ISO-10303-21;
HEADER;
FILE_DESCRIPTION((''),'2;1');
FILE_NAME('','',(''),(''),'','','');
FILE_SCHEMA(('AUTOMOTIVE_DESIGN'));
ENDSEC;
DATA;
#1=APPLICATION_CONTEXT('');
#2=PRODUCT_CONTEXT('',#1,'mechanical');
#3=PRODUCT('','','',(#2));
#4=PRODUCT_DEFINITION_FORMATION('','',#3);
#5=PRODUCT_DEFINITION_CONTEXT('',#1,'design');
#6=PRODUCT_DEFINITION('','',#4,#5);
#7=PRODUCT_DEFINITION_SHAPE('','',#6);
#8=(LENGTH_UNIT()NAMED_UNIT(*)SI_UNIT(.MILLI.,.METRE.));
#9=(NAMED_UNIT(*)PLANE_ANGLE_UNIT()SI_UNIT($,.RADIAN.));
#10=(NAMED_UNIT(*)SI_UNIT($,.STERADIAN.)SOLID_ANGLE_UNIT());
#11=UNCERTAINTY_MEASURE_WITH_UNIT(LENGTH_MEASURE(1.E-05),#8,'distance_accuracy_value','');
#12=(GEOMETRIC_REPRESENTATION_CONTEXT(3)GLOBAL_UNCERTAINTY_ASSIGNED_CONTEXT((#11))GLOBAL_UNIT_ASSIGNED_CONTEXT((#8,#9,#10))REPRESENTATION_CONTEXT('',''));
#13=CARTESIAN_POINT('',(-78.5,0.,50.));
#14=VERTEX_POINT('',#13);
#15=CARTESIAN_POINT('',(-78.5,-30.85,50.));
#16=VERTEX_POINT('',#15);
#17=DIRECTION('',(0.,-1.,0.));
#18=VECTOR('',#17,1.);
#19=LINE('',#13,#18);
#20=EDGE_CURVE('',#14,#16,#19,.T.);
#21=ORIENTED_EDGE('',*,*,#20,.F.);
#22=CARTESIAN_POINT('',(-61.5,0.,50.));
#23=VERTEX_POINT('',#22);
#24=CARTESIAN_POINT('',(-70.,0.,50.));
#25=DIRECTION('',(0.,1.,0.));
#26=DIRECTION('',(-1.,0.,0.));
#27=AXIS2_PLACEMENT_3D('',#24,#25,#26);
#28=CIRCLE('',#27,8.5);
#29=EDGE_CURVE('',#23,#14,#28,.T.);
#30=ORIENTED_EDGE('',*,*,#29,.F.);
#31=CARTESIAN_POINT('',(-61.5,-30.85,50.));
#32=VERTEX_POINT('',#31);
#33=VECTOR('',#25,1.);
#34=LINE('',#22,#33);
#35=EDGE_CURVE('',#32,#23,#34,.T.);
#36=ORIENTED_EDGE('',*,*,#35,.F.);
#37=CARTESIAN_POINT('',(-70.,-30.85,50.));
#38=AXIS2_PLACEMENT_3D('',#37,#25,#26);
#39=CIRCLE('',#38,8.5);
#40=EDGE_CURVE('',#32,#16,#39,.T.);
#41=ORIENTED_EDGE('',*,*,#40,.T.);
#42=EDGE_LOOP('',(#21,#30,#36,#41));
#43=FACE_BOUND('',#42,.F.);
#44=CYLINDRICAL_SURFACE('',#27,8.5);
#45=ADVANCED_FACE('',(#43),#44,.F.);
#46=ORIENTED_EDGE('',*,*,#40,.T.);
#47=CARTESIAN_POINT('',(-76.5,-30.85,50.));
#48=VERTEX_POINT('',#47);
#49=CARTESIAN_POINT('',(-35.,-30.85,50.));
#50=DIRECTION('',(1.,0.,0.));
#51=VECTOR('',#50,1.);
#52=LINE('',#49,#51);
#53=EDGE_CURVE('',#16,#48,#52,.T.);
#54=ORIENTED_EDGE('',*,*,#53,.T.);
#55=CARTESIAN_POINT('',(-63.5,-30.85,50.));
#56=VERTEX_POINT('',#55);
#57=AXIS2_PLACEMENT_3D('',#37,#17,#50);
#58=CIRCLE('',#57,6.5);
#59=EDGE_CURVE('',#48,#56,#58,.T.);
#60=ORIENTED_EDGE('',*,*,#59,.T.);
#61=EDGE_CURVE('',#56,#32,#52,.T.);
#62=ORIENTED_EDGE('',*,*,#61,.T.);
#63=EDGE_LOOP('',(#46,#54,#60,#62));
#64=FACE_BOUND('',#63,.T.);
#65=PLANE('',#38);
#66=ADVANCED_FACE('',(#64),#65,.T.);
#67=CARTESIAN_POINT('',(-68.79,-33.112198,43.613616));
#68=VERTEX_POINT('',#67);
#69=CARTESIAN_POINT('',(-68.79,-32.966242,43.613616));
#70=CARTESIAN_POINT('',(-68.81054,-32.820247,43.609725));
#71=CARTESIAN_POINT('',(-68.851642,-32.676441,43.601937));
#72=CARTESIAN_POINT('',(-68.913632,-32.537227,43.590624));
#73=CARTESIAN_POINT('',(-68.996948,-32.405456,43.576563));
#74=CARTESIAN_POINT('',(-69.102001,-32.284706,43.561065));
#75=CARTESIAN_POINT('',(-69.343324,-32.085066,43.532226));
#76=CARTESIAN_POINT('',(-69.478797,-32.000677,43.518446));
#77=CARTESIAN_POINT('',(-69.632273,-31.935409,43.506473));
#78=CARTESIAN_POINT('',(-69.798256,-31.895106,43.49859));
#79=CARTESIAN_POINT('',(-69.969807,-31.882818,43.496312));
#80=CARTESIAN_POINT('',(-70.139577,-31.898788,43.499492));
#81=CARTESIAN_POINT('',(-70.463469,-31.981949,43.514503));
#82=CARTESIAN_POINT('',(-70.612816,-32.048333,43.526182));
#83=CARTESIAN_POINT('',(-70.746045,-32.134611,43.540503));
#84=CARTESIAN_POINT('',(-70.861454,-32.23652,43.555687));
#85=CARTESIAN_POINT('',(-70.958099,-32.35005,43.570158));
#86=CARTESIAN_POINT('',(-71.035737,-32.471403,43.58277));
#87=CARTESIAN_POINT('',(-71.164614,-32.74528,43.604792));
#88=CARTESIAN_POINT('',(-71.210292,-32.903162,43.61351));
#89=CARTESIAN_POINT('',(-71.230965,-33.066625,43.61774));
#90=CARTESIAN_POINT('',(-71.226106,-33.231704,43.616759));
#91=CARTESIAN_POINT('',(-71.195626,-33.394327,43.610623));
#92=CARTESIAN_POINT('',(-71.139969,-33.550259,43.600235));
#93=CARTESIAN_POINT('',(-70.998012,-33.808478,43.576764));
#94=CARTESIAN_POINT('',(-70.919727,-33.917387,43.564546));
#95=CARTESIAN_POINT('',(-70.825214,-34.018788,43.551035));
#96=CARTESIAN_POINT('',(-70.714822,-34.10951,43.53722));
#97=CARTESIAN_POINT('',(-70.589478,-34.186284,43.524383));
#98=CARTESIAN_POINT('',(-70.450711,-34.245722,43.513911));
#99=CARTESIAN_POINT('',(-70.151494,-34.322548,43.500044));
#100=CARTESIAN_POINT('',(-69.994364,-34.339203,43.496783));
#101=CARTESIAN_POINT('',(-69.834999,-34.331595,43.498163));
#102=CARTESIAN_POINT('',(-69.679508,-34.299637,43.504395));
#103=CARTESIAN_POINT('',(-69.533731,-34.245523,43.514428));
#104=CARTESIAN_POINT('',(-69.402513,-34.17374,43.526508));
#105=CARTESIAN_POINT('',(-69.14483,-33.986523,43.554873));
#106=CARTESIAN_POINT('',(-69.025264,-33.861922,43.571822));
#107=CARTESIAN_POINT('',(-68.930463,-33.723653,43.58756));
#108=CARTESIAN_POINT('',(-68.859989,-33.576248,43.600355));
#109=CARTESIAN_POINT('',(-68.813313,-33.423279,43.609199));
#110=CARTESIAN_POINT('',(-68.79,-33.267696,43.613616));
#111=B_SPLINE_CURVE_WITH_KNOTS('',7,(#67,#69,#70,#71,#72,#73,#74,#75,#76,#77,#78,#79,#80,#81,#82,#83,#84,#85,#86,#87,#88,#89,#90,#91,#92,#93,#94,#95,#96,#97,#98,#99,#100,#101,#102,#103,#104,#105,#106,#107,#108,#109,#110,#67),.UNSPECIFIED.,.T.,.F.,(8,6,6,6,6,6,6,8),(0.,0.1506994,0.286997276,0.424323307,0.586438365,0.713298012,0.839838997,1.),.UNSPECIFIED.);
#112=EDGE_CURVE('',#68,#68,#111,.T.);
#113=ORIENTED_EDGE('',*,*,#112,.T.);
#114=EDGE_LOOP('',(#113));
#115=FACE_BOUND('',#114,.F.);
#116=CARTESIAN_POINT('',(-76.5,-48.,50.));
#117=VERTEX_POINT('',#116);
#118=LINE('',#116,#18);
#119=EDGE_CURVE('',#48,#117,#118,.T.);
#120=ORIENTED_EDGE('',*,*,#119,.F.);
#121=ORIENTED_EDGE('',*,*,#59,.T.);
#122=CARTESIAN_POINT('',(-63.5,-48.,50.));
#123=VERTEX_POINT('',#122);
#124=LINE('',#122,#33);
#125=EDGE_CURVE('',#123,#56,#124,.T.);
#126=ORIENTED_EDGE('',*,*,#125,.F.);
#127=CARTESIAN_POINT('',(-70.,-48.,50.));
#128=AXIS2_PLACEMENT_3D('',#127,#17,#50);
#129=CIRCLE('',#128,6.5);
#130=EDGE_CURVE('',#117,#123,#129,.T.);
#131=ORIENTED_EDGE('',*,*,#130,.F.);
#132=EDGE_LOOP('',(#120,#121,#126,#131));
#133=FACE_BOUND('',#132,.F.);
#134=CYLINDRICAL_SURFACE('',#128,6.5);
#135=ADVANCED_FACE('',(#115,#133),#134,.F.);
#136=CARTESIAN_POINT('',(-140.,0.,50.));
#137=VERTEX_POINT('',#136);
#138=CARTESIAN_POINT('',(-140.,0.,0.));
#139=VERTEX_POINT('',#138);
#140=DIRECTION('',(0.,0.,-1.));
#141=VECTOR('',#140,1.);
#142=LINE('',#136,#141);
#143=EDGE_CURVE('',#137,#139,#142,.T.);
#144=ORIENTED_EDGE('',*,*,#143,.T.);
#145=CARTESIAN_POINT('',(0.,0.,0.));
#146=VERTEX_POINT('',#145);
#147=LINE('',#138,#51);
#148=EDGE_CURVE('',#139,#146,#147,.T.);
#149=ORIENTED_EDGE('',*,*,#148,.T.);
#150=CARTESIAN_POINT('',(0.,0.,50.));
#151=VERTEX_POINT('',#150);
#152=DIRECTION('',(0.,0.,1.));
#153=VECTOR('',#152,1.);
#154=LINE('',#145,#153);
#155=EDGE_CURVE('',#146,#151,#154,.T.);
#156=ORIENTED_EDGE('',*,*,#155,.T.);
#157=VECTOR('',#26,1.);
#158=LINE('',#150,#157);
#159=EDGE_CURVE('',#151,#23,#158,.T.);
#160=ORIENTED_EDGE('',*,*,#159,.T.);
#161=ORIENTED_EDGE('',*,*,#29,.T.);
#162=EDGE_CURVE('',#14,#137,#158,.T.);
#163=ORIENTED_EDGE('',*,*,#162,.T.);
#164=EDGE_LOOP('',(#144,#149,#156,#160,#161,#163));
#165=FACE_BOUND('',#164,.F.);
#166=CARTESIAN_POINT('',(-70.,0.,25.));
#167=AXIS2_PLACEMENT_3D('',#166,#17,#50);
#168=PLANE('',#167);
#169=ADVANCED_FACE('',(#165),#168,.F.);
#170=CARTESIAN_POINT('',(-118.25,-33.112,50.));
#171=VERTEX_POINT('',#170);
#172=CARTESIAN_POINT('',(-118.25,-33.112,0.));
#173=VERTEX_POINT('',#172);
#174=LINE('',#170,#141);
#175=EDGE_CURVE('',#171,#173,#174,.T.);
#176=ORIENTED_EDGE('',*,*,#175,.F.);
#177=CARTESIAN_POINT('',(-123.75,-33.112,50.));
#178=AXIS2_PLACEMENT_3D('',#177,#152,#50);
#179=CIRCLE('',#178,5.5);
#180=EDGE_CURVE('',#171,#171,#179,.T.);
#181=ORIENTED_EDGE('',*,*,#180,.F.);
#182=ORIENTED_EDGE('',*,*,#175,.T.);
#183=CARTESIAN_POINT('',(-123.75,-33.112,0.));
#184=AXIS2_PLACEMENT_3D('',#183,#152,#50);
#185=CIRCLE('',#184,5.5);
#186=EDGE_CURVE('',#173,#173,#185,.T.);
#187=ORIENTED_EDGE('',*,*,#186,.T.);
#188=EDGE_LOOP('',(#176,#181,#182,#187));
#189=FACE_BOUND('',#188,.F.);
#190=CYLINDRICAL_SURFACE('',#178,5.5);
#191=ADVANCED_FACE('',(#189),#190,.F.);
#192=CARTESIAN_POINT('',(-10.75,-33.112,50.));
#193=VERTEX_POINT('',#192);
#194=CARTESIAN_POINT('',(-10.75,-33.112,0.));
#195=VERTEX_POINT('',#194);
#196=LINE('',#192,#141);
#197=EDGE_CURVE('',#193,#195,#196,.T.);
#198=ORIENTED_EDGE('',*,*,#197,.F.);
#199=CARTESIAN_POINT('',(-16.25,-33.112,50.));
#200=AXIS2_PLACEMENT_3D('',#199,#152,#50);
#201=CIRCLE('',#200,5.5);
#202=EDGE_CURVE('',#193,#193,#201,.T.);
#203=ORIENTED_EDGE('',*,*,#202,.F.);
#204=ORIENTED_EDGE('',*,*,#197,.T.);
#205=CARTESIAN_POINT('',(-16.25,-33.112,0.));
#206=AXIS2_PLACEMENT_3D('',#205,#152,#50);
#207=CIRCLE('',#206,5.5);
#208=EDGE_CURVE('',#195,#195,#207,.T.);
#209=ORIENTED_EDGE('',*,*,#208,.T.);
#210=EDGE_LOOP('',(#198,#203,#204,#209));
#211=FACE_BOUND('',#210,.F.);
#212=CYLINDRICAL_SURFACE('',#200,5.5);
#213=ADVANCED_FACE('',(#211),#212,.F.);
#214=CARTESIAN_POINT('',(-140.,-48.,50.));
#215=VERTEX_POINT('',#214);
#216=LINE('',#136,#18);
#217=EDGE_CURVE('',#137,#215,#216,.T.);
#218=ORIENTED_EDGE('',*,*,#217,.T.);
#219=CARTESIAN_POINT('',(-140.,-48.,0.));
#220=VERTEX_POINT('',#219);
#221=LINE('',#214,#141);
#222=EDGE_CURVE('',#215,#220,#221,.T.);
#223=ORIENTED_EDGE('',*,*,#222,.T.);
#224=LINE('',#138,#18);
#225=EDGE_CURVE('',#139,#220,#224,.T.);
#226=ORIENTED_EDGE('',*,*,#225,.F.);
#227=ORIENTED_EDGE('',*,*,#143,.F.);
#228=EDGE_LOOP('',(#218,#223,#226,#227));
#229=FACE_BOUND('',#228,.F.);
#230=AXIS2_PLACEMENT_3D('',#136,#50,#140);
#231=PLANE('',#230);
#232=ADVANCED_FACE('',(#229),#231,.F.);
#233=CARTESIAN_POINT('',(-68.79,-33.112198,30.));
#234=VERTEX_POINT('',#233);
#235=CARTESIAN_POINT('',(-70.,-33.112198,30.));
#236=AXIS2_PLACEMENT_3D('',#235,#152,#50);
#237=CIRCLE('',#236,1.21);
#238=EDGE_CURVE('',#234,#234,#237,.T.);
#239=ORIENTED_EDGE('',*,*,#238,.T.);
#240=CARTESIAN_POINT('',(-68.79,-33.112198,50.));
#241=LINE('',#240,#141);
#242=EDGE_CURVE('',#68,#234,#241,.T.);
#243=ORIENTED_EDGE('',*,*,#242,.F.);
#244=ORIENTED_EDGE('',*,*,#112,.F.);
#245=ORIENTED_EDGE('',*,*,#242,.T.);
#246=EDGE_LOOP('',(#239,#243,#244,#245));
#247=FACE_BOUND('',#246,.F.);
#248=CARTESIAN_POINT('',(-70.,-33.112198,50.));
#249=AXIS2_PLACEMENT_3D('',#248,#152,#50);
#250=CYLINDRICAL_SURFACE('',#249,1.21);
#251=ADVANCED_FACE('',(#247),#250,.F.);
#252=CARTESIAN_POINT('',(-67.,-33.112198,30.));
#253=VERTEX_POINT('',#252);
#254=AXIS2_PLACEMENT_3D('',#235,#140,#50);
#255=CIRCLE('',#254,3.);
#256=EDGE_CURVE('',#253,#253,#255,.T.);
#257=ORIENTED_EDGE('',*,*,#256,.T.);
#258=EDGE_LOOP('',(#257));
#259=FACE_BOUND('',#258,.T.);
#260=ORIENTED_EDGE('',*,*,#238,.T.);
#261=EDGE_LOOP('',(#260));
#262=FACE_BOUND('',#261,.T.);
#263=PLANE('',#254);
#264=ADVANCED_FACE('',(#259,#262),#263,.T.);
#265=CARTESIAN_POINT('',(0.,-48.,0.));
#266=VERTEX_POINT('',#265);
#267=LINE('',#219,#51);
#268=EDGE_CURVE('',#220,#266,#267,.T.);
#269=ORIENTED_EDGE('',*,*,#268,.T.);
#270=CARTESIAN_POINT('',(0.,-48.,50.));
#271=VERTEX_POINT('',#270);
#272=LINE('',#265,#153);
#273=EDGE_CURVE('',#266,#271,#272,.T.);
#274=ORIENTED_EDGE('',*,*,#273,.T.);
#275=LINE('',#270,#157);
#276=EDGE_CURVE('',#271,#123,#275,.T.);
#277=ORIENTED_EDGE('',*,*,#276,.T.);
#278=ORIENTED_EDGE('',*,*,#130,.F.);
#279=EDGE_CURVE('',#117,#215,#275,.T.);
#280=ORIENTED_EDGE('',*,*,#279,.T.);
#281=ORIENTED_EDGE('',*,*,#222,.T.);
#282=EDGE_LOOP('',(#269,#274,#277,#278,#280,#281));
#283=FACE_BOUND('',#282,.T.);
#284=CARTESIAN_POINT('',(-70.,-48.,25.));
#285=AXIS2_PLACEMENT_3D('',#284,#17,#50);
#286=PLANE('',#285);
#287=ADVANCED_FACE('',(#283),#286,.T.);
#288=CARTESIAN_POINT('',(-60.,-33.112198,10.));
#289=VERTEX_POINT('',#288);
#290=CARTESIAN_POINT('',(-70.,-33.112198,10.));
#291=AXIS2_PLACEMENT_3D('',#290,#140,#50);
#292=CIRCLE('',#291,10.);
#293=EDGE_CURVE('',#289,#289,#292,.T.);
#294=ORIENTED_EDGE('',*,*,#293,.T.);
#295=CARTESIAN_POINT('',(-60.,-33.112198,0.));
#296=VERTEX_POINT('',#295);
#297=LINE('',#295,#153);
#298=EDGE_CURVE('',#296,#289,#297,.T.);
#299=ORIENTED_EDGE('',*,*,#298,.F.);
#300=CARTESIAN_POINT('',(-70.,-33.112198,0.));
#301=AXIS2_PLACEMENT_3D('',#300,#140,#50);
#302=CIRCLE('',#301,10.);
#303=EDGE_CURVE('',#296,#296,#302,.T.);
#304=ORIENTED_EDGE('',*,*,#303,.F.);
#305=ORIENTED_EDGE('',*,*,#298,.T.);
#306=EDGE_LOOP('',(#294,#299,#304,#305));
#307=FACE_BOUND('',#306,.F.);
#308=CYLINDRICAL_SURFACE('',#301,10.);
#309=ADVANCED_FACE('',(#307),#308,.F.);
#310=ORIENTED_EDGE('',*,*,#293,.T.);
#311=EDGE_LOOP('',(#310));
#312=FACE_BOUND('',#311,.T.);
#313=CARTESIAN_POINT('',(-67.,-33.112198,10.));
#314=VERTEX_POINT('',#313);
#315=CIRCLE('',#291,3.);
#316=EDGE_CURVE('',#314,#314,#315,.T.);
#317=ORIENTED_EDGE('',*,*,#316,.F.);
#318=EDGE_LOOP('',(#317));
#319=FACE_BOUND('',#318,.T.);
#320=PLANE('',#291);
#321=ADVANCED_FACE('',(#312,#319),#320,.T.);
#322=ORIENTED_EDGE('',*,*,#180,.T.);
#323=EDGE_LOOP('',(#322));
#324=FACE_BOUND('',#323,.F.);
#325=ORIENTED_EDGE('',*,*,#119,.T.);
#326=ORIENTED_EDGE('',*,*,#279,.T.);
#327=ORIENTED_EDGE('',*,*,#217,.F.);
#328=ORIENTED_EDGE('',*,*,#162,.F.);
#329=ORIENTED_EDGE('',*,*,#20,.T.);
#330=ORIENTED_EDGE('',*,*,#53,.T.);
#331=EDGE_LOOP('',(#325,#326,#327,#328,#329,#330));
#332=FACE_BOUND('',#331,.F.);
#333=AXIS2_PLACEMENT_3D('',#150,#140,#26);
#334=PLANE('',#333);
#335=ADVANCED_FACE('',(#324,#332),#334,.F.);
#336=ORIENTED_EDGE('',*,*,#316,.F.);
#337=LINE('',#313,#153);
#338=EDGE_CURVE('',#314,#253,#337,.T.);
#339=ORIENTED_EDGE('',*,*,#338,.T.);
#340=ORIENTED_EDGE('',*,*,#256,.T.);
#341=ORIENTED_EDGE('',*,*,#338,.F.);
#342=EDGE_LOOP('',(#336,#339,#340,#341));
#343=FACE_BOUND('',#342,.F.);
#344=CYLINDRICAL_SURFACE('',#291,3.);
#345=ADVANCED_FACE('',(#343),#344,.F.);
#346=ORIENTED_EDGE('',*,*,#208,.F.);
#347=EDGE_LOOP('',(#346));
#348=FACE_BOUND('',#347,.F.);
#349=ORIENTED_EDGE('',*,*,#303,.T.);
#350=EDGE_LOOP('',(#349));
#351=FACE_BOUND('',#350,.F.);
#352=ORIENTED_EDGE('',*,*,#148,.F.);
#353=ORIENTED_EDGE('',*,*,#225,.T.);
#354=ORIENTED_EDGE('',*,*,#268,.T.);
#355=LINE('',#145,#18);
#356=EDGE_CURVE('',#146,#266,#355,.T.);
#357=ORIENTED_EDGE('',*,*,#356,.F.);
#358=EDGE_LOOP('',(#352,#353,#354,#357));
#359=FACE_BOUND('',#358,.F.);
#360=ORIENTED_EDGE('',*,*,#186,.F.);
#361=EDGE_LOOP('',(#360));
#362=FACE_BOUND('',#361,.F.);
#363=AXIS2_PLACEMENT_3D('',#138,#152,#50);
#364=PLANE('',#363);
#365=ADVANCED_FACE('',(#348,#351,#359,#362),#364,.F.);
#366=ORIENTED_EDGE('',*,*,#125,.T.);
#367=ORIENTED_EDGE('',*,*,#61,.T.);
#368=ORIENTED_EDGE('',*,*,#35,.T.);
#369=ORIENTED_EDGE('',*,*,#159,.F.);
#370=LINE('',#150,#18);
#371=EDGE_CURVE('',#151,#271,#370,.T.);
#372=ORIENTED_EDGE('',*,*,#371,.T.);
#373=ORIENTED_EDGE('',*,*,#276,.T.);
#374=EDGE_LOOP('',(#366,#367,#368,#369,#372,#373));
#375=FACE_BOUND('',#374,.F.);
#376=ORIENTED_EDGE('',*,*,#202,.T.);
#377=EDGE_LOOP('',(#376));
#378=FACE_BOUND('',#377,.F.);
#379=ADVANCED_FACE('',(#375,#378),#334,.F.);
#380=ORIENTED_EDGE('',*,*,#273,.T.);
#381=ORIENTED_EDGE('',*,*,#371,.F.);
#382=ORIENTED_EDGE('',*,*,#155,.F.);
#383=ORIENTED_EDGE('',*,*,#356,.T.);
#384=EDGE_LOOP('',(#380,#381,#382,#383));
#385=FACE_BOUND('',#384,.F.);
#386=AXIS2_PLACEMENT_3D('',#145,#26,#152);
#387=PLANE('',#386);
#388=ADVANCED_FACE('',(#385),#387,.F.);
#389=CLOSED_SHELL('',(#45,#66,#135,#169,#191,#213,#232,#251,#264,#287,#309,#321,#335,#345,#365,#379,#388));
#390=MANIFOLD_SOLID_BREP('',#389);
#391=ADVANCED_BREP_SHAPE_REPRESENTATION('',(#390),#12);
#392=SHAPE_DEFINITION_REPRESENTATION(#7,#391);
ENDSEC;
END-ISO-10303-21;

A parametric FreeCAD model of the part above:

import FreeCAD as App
import Part
import Sketcher

doc = App.newDocument("Part")
params = doc.addObject("Spreadsheet::Sheet", "Params")
for row, (alias, value) in enumerate([
    ("sketch1_width", "140 mm"),
    ("sketch1_height", "50 mm"),
    ("pad1_length", "48 mm"),
    ("sketch2_diameter", "11 mm"),
    ("sketch3_diameter", "13 mm"),
    ("pocket2_length", "20 mm"),
    ("sketch4_diameter", "17 mm"),
    ("pocket3_length", "30.85 mm"),
    ("sketch5_diameter", "2.42 mm"),
    ("sketch6_diameter", "20 mm"),
    ("pocket5_length", "10 mm"),
    ("sketch7_diameter", "6 mm"),
    ("pocket6_length", "20 mm"),
], start=1):
    params.set(f"A{row}", alias)
    params.set(f"B{row}", "=" + value)
    params.setAlias(f"B{row}", alias)

body = doc.addObject("PartDesign::Body", "Body")

# Sketch on XZ plane
sketch1 = body.newObject("Sketcher::SketchObject", "Sketch")
sketch1.AttachmentSupport = (doc.getObject("XZ_Plane"), [""])
sketch1.MapMode = "FlatFace"
sketch1.addGeometry([
    Part.LineSegment(App.Vector(-140, 0, 0), App.Vector(0, 0, 0)),
    Part.LineSegment(App.Vector(0, 0, 0), App.Vector(0, 50, 0)),
    Part.LineSegment(App.Vector(0, 50, 0), App.Vector(-140, 50, 0)),
    Part.LineSegment(App.Vector(-140, 50, 0), App.Vector(-140, 0, 0)),
], False)
sketch1.addConstraint([
    Sketcher.Constraint("Coincident", 0, 2, 1, 1),
    Sketcher.Constraint("Coincident", 1, 2, 2, 1),
    Sketcher.Constraint("Coincident", 2, 2, 3, 1),
    Sketcher.Constraint("Coincident", 3, 2, 0, 1),
    Sketcher.Constraint("Horizontal", 0),
    Sketcher.Constraint("Vertical", 1),
    Sketcher.Constraint("Horizontal", 2),
    Sketcher.Constraint("Vertical", 3),
    Sketcher.Constraint("Coincident", 0, 2, -1, 1),
    Sketcher.Constraint("DistanceX", 0, 1, 0, 2, 140.0),
    Sketcher.Constraint("DistanceY", 1, 1, 1, 2, 50.0),
])
sketch1.setExpression("Constraints[9]", "Params.sketch1_width")
sketch1.setExpression("Constraints[10]", "Params.sketch1_height")
pad1 = body.newObject("PartDesign::Pad", "Pad")
pad1.Profile = sketch1
pad1.setExpression("Length", "Params.pad1_length")

# Sketch on XY plane
sketch2 = body.newObject("Sketcher::SketchObject", "Sketch001")
sketch2.AttachmentSupport = (doc.getObject("XY_Plane"), [""])
sketch2.MapMode = "FlatFace"
sketch2.AttachmentOffset = App.Placement(App.Vector(0, 0, 50), App.Rotation())
sketch2.addGeometry([
    Part.Circle(App.Vector(-124, -33, 0), App.Vector(0, 0, 1), 6),
    Part.Circle(App.Vector(-16, -33, 0), App.Vector(0, 0, 1), 6),
], False)
sketch2.addConstraint([
    Sketcher.Constraint("Equal", 0, 1),
    Sketcher.Constraint("Horizontal", 0, 3, 1, 3),
    Sketcher.Constraint("Diameter", 0, 11.0),
    Sketcher.Constraint("DistanceX", 0, 3, 1, 3, 107.5),
    Sketcher.Constraint("DistanceX", 0, 3, -1, 1, 123.75),
    Sketcher.Constraint("DistanceY", 0, 3, -1, 1, 33.112),
])
sketch2.setExpression("Constraints[2]", "Params.sketch2_diameter")
pocket1 = body.newObject("PartDesign::Pocket", "Pocket")
pocket1.Profile = sketch2
pocket1.Type = "ThroughAll"

# Sketch on XZ plane
sketch3 = body.newObject("Sketcher::SketchObject", "Sketch002")
sketch3.AttachmentSupport = (doc.getObject("XZ_Plane"), [""])
sketch3.MapMode = "FlatFace"
sketch3.AttachmentOffset = App.Placement(App.Vector(0, 0, 48), App.Rotation())
sketch3.addGeometry(Part.Circle(App.Vector(-70, 50, 0), App.Vector(0, 0, 1), 6), False)
sketch3.addConstraint([
    Sketcher.Constraint("Diameter", 0, 13.0),
    Sketcher.Constraint("DistanceX", 0, 3, -1, 1, 70.0),
    Sketcher.Constraint("DistanceY", -1, 1, 0, 3, 50.0),
])
sketch3.setExpression("Constraints[0]", "Params.sketch3_diameter")
pocket2 = body.newObject("PartDesign::Pocket", "Pocket001")
pocket2.Profile = sketch3
pocket2.setExpression("Length", "Params.pocket2_length")

# Sketch on XZ plane
sketch4 = body.newObject("Sketcher::SketchObject", "Sketch003")
sketch4.AttachmentSupport = (doc.getObject("XZ_Plane"), [""])
sketch4.MapMode = "FlatFace"
sketch4.addGeometry(Part.Circle(App.Vector(-70, 50, 0), App.Vector(0, 0, 1), 8), False)
sketch4.addConstraint([
    Sketcher.Constraint("Diameter", 0, 17.0),
    Sketcher.Constraint("DistanceX", 0, 3, -1, 1, 70.0),
    Sketcher.Constraint("DistanceY", -1, 1, 0, 3, 50.0),
])
sketch4.setExpression("Constraints[0]", "Params.sketch4_diameter")
pocket3 = body.newObject("PartDesign::Pocket", "Pocket002")
pocket3.Profile = sketch4
pocket3.setExpression("Length", "Params.pocket3_length")
pocket3.Reversed = True

# Sketch on XY plane
sketch5 = body.newObject("Sketcher::SketchObject", "Sketch004")
sketch5.AttachmentSupport = (doc.getObject("XY_Plane"), [""])
sketch5.MapMode = "FlatFace"
sketch5.AttachmentOffset = App.Placement(App.Vector(0, 0, 50), App.Rotation())
sketch5.addGeometry(Part.Circle(App.Vector(-70, -33.1, 0), App.Vector(0, 0, 1), 1.2), False)
sketch5.addConstraint([
    Sketcher.Constraint("Diameter", 0, 2.42),
    Sketcher.Constraint("DistanceX", 0, 3, -1, 1, 70.0),
    Sketcher.Constraint("DistanceY", 0, 3, -1, 1, 33.112198),
])
sketch5.setExpression("Constraints[0]", "Params.sketch5_diameter")
pocket4 = body.newObject("PartDesign::Pocket", "Pocket003")
pocket4.Profile = sketch5
pocket4.Type = "ThroughAll"

# Sketch on XY plane
sketch6 = body.newObject("Sketcher::SketchObject", "Sketch005")
sketch6.AttachmentSupport = (doc.getObject("XY_Plane"), [""])
sketch6.MapMode = "FlatFace"
sketch6.addGeometry(Part.Circle(App.Vector(-70, -33, 0), App.Vector(0, 0, 1), 10), False)
sketch6.addConstraint([
    Sketcher.Constraint("Diameter", 0, 20.0),
    Sketcher.Constraint("DistanceX", 0, 3, -1, 1, 70.0),
    Sketcher.Constraint("DistanceY", 0, 3, -1, 1, 33.112198),
])
sketch6.setExpression("Constraints[0]", "Params.sketch6_diameter")
pocket5 = body.newObject("PartDesign::Pocket", "Pocket004")
pocket5.Profile = sketch6
pocket5.setExpression("Length", "Params.pocket5_length")
pocket5.Reversed = True

# Sketch on XY plane
sketch7 = body.newObject("Sketcher::SketchObject", "Sketch006")
sketch7.AttachmentSupport = (doc.getObject("XY_Plane"), [""])
sketch7.MapMode = "FlatFace"
sketch7.AttachmentOffset = App.Placement(App.Vector(0, 0, 10), App.Rotation())
sketch7.addGeometry(Part.Circle(App.Vector(-70, -33.1, 0), App.Vector(0, 0, 1), 3), False)
sketch7.addConstraint([
    Sketcher.Constraint("Diameter", 0, 6.0),
    Sketcher.Constraint("DistanceX", 0, 3, -1, 1, 70.0),
    Sketcher.Constraint("DistanceY", 0, 3, -1, 1, 33.112198),
])
sketch7.setExpression("Constraints[0]", "Params.sketch7_diameter")
pocket6 = body.newObject("PartDesign::Pocket", "Pocket005")
pocket6.Profile = sketch7
pocket6.setExpression("Length", "Params.pocket6_length")
pocket6.Reversed = True

doc.recompute()
